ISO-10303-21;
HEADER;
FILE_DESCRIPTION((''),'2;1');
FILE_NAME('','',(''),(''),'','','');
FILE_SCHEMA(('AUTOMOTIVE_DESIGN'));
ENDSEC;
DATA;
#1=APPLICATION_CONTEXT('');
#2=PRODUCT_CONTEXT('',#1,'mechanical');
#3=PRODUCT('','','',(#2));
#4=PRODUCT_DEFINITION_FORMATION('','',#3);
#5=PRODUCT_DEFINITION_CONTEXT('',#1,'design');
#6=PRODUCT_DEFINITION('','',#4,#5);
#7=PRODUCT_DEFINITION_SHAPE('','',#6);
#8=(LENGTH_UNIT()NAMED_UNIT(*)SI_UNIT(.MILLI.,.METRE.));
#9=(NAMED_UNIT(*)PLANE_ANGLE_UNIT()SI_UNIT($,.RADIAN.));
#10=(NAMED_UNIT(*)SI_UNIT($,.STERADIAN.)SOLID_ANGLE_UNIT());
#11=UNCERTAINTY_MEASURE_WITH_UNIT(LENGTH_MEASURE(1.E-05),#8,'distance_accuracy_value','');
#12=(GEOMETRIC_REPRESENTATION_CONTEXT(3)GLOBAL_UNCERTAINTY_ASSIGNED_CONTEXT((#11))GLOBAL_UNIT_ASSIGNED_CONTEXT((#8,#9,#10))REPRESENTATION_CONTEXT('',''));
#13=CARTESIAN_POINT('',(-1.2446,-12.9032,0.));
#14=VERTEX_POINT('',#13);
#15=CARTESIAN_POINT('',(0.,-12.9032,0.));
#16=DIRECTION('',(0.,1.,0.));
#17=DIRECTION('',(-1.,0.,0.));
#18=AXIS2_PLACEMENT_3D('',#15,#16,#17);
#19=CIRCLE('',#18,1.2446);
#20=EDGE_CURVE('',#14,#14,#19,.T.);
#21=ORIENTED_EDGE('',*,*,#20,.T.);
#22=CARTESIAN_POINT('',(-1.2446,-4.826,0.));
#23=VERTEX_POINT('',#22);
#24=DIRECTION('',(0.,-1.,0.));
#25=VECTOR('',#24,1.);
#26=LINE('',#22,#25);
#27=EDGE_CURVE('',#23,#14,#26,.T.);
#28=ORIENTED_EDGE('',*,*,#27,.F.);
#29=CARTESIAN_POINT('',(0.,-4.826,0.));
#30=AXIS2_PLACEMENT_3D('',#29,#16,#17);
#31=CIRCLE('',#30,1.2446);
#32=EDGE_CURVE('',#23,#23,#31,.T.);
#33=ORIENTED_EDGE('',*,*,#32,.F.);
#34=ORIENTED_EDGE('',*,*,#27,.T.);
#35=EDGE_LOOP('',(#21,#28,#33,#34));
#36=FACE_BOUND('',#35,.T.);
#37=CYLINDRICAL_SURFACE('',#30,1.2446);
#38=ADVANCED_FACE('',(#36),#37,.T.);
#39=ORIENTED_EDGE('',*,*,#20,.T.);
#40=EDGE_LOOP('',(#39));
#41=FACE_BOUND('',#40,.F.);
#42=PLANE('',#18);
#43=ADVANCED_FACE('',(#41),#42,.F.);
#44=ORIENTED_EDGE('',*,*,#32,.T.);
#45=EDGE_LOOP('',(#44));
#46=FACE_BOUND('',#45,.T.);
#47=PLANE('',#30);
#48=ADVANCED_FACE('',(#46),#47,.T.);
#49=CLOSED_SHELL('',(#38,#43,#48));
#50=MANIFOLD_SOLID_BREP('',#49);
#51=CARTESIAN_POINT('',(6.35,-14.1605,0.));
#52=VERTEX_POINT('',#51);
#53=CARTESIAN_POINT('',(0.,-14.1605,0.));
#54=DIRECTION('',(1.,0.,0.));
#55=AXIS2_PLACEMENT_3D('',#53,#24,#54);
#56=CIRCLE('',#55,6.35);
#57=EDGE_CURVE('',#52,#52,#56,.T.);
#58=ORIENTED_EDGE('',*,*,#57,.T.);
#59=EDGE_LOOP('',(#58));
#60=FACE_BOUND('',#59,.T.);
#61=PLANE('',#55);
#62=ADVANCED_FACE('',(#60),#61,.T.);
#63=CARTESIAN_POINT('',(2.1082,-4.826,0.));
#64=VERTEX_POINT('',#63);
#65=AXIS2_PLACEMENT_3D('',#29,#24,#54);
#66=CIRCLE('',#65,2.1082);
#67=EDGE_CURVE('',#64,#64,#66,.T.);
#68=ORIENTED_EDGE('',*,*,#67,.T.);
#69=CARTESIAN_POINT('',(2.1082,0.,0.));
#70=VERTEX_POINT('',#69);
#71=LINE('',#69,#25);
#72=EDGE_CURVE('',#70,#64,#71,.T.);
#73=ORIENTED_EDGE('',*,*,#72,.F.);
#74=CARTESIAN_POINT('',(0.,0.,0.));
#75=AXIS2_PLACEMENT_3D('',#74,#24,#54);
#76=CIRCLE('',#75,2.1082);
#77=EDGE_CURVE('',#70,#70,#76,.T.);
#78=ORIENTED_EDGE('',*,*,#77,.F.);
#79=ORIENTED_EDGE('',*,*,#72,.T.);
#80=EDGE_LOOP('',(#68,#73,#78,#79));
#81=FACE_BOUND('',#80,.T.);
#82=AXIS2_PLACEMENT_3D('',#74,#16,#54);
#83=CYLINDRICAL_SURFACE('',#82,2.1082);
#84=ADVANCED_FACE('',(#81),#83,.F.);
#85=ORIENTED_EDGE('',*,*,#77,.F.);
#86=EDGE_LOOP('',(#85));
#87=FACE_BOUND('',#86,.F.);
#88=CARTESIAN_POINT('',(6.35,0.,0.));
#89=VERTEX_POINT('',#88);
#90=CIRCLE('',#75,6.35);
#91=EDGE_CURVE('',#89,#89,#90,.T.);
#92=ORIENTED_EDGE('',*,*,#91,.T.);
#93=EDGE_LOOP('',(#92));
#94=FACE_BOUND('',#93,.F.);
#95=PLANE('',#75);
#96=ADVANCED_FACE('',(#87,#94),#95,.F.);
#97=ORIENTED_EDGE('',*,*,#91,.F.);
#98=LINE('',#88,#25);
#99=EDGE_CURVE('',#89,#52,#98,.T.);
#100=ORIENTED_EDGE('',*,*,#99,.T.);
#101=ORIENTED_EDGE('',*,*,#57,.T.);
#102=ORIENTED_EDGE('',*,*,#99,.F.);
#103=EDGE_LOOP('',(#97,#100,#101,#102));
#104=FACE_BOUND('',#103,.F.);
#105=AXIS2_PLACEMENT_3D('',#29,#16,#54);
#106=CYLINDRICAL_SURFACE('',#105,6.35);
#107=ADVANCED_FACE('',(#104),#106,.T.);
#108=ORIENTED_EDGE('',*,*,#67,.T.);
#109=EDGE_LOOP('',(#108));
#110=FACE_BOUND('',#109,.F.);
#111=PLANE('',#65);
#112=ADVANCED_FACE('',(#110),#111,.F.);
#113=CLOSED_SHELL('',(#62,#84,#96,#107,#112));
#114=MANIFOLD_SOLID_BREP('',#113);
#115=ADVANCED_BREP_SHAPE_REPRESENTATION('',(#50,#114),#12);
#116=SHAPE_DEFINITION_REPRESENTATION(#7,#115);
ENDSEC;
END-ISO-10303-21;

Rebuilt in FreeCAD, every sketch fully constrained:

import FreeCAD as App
import Part
import Sketcher
Q = App.Units.Quantity

doc = App.newDocument("Part")
body = doc.addObject("PartDesign::Body", "Body")

# Sketch on XZ plane
sketch1 = body.newObject("Sketcher::SketchObject", "Sketch")
sketch1.AttachmentSupport = (doc.getObject("XZ_Plane"), [""])
sketch1.MapMode = "FlatFace"
sketch1.addGeometry([
    Part.Circle(App.Vector(0, 0, 0), App.Vector(0, 0, 1), 6.3),
    Part.Circle(App.Vector(0, 0, 0), App.Vector(0, 0, 1), 2.1),
], False)
sketch1.addConstraint([
    Sketcher.Constraint("Coincident", 0, 3, -1, 1),
    Sketcher.Constraint("Coincident", 1, 3, -1, 1),
    Sketcher.Constraint("Diameter", 0, Q("0.5 in")),
    Sketcher.Constraint("Diameter", 1, Q("0.166 in")),
])
pad1 = body.newObject("PartDesign::Pad", "Pad")
pad1.Profile = sketch1
pad1.Length = Q("0.19 in")

# Sketch on XZ plane
sketch2 = body.newObject("Sketcher::SketchObject", "Sketch001")
sketch2.AttachmentSupport = (doc.getObject("XZ_Plane"), [""])
sketch2.MapMode = "FlatFace"
sketch2.AttachmentOffset = App.Placement(App.Vector(0, 0, 0.19 * 25.4), App.Rotation())
sketch2.addGeometry(Part.Circle(App.Vector(0, 0, 0), App.Vector(0, 0, 1), 6), False)
sketch2.addConstraint([
    Sketcher.Constraint("Coincident", 0, 3, -1, 1),
    Sketcher.Constraint("Diameter", 0, Q("0.5 in")),
])
pad2 = body.newObject("PartDesign::Pad", "Pad001")
pad2.Profile = sketch2
pad2.Length = Q("0.3675 in")
body2 = doc.addObject("PartDesign::Body", "Body001")

# Sketch on XZ plane
sketch3 = body2.newObject("Sketcher::SketchObject", "Sketch002")
sketch3.AttachmentSupport = (doc.getObject("XZ_Plane001"), [""])
sketch3.MapMode = "FlatFace"
sketch3.AttachmentOffset = App.Placement(App.Vector(0, 0, 0.19 * 25.4), App.Rotation())
sketch3.addGeometry(Part.Circle(App.Vector(0, 0, 0), App.Vector(0, 0, 1), 1.2), False)
sketch3.addConstraint([
    Sketcher.Constraint("Coincident", 0, 3, -1, 1),
    Sketcher.Constraint("Diameter", 0, Q("0.098 in")),
])
pad3 = body2.newObject("PartDesign::Pad", "Pad002")
pad3.Profile = sketch3
pad3.Length = Q("0.318 in")

doc.recompute()
